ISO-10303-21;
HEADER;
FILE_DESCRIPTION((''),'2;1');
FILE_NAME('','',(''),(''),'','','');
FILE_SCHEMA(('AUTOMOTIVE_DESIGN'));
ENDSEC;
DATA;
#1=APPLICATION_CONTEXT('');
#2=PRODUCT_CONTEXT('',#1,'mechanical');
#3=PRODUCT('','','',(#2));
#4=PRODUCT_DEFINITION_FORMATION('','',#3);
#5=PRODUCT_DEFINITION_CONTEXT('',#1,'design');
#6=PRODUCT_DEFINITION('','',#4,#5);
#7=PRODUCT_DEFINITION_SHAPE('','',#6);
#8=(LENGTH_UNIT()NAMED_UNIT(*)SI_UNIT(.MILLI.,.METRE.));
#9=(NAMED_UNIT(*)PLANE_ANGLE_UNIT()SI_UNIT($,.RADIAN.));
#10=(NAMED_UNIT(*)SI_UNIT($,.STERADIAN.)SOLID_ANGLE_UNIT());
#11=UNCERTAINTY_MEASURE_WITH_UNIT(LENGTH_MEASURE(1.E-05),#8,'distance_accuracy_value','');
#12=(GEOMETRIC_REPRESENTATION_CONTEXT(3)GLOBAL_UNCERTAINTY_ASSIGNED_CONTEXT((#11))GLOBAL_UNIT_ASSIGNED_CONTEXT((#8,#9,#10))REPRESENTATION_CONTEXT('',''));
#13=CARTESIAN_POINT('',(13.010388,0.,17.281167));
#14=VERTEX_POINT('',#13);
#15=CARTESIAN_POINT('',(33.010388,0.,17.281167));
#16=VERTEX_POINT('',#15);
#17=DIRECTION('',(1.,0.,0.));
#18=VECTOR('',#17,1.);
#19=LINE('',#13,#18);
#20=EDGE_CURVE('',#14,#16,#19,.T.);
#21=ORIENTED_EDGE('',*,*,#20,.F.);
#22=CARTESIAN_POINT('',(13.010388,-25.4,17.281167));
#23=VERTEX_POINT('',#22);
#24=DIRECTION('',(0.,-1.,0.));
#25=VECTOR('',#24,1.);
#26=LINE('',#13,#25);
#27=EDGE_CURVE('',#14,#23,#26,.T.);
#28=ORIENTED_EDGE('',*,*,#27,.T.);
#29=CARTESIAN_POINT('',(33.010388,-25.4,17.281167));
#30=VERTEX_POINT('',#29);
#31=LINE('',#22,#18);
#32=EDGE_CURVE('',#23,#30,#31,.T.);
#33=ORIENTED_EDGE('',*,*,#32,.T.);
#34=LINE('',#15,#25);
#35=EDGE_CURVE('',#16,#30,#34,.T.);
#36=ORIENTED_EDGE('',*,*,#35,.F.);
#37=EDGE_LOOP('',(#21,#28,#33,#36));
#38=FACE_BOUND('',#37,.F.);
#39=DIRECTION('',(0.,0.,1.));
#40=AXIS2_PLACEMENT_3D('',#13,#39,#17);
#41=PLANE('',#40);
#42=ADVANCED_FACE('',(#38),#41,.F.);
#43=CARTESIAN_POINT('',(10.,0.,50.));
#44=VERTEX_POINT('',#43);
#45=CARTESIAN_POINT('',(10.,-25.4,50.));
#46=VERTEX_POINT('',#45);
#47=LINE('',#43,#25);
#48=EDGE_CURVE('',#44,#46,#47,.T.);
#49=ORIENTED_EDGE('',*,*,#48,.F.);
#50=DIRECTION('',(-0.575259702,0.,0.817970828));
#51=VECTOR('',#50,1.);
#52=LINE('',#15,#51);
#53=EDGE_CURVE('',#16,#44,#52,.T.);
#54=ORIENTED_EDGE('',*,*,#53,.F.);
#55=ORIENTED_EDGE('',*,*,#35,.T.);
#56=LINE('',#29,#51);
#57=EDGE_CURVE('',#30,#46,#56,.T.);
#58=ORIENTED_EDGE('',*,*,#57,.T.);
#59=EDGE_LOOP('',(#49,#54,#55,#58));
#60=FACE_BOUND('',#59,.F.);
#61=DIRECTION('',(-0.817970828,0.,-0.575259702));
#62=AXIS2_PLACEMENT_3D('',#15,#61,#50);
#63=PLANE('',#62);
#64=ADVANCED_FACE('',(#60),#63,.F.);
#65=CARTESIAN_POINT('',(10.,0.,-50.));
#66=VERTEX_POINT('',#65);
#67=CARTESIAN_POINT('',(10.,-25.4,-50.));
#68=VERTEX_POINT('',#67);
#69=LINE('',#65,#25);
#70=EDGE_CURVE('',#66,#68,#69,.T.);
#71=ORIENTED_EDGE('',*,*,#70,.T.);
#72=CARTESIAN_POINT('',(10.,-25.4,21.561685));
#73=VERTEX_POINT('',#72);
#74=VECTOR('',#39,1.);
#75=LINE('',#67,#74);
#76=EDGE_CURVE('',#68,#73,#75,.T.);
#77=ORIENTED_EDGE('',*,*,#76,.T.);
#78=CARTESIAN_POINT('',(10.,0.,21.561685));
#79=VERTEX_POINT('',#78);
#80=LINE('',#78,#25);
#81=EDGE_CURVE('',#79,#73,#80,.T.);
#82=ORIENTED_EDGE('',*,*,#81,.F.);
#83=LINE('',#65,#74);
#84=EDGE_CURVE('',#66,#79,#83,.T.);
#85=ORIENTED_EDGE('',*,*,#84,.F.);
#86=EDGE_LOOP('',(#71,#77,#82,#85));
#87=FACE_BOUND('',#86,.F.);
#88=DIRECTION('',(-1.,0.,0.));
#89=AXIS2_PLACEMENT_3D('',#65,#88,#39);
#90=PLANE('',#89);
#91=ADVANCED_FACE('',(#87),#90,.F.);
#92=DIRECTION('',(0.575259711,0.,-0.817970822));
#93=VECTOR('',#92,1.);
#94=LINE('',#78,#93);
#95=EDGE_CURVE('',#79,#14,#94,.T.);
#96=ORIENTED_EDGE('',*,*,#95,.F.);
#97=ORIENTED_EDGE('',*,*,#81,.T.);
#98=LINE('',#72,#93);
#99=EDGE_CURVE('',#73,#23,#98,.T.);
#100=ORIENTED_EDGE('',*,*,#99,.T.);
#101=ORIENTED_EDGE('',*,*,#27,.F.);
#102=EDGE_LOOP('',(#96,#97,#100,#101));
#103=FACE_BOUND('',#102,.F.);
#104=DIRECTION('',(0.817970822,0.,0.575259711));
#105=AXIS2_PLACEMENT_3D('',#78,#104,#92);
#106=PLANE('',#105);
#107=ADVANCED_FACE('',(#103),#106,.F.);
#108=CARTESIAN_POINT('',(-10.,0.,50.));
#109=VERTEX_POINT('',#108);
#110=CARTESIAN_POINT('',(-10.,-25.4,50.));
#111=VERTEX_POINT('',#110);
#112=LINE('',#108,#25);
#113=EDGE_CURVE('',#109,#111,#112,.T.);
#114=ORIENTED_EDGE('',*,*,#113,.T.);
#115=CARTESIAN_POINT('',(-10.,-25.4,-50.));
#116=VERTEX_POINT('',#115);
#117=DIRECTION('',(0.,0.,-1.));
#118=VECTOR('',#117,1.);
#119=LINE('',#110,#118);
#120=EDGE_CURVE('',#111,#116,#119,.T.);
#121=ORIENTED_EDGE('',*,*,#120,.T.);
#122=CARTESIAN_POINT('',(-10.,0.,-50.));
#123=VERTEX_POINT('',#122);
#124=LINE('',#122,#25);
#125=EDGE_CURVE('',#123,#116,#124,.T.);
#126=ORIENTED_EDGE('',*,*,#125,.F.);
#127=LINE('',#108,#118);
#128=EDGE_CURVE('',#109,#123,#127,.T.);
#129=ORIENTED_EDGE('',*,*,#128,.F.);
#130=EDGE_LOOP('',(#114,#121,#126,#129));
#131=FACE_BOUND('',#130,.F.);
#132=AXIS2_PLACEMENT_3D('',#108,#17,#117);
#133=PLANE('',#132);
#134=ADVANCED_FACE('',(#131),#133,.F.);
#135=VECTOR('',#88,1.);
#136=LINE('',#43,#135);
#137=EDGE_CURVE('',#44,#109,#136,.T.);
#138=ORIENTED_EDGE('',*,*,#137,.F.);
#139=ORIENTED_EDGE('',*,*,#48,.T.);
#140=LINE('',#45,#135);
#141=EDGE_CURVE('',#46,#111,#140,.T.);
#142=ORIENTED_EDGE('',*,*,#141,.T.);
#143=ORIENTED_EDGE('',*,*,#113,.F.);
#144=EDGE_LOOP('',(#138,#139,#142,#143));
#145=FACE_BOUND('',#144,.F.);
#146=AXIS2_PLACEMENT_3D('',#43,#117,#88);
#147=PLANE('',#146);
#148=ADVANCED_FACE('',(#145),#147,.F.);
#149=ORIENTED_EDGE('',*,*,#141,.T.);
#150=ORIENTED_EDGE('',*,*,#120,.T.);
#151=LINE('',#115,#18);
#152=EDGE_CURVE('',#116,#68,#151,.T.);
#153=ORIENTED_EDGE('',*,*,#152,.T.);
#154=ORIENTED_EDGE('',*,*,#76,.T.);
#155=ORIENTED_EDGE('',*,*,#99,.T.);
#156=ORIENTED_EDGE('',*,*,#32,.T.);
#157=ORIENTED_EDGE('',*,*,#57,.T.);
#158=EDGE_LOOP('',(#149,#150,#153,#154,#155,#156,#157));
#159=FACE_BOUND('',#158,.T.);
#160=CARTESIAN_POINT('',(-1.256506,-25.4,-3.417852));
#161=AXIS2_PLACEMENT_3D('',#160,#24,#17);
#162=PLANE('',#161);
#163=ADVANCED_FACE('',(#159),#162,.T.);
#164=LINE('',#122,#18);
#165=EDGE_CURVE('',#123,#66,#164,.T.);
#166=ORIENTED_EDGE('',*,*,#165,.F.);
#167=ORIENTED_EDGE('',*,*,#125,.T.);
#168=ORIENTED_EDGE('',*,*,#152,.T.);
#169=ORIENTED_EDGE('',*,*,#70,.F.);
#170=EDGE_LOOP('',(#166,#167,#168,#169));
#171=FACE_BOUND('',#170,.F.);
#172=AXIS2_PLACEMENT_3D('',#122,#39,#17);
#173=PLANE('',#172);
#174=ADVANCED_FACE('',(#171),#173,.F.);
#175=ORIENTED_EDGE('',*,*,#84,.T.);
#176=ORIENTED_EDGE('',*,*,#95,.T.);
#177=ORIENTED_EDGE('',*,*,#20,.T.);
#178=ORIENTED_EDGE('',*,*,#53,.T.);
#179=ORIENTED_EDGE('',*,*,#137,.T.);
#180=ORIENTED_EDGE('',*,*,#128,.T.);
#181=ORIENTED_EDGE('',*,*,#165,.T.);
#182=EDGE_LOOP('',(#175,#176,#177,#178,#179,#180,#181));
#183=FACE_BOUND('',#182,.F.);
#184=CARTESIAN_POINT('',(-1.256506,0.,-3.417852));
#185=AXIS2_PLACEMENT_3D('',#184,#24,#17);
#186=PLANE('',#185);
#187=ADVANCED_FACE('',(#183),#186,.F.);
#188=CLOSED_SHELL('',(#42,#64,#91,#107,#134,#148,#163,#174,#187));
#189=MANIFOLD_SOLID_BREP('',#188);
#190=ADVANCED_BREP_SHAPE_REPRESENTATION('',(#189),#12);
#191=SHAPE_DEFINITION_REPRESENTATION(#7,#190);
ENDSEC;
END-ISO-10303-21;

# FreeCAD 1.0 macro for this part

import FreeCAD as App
import Part
import Sketcher
from FreeCAD import Vector


def add_polygon(sketch, points):
    """Adds a closed chain of lines whose ends are joined by coincident constraints."""
    first, n = sketch.GeometryCount, len(points)
    for a, b in zip(points, points[1:] + points[:1]):
        sketch.addGeometry(Part.LineSegment(App.Vector(*a, 0), App.Vector(*b, 0)), False)
    for i in range(n):
        sketch.addConstraint(Sketcher.Constraint("Coincident", first + i, 2, first + (i + 1) % n, 1))

doc = App.newDocument("Part")
body = doc.addObject("PartDesign::Body", "Body")

# Sketch on XZ plane
sketch1 = doc.addObject("Sketcher::SketchObject", "Sketch")
body.addObject(sketch1)
sketch1.AttachmentSupport = (doc.XZ_Plane, [""])
sketch1.MapMode = "FlatFace"
add_polygon(sketch1, [(-10, 50), (-10, -50), (10, -50), (10, 22), (13, 17), (33, 17), (10, 50)])  # lines 0-6
sketch1.addConstraint(Sketcher.Constraint("Vertical", 0))
sketch1.addConstraint(Sketcher.Constraint("Horizontal", 1))
sketch1.addConstraint(Sketcher.Constraint("Vertical", 2))
sketch1.addConstraint(Sketcher.Constraint("Horizontal", 4))
sketch1.addConstraint(Sketcher.Constraint("Horizontal", 6))
sketch1.addConstraint(Sketcher.Constraint("Symmetric", 0, 2, 5, 2, -1, 1))
sketch1.addConstraint(Sketcher.Constraint("Parallel", 3, 5))
sketch1.addConstraint(Sketcher.Constraint("Vertical", 2, 2, 5, 2))
sketch1.addConstraint(Sketcher.Constraint("Equal", 1, 4))
sketch1.addConstraint(Sketcher.Constraint("DistanceX", 1, 1, 1, 2, 20.0))
sketch1.addConstraint(Sketcher.Constraint("DistanceY", 0, 2, 0, 1, 100.0))
sketch1.addConstraint(Sketcher.Constraint("Distance", 5, 40.0))
sketch1.addConstraint(Sketcher.Constraint("DistanceY", 2, 1, 2, 2, 71.561685))
pad1 = doc.addObject("PartDesign::Pad", "Pad")
body.addObject(pad1)
pad1.Profile = sketch1
pad1.Length = 25.4

doc.recompute()
